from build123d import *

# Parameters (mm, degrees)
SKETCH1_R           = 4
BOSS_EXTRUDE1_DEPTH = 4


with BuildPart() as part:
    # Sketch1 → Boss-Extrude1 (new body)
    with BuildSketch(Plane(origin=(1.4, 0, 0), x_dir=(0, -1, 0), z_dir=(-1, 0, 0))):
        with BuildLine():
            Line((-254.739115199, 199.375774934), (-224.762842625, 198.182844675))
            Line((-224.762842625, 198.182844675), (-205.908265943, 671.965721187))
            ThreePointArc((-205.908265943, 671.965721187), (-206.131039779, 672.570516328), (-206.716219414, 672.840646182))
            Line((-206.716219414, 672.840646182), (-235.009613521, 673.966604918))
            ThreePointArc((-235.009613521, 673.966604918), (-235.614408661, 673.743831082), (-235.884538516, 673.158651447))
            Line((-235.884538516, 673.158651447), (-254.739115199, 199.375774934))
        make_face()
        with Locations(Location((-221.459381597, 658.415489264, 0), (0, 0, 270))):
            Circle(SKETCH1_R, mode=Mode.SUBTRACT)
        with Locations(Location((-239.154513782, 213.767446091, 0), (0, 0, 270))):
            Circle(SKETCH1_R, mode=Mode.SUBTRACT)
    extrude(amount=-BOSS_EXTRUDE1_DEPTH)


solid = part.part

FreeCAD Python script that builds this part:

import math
import FreeCAD as App
import Part
import Sketcher
from FreeCAD import Vector
Q = App.Units.Quantity

doc = App.newDocument("Part")
params = doc.addObject("Spreadsheet::Sheet", "Params")
for row, (alias, value) in enumerate([
    ("sketch1_diameter", "8 mm"),
    ("sketch1_length", "30 mm"),
    ("pad1_length", "4 mm"),
], start=1):
    params.set(f"A{row}", alias)
    params.set(f"B{row}", "=" + value)
    params.setAlias(f"B{row}", alias)

body = doc.addObject("PartDesign::Body", "Body")

# Sketch on YZ plane
sketch1 = doc.addObject("Sketcher::SketchObject", "Sketch")
body.addObject(sketch1)
sketch1.AttachmentSupport = (doc.YZ_Plane, [""])
sketch1.MapMode = "FlatFace"
sketch1.AttachmentOffset = App.Placement(Vector(0, 0, 1.4), App.Rotation())
sketch1.addGeometry(Part.LineSegment(Vector(254.7, 199.4, 0), Vector(224.8, 198.2, 0)), False)
sketch1.addGeometry(Part.LineSegment(Vector(224.8, 198.2, 0), Vector(205.9, 672, 0)), False)
sketch1.addGeometry(Part.ArcOfCircle(Part.Circle(Vector(206.7, 672, 0), Vector(0, 0, 1), 0.8), math.radians(92), math.radians(182)), False)
sketch1.addGeometry(Part.LineSegment(Vector(206.7, 672.8, 0), Vector(235, 674, 0)), False)
sketch1.addGeometry(Part.ArcOfCircle(Part.Circle(Vector(235, 673.1, 0), Vector(0, 0, 1), 0.8), math.radians(2), math.radians(92)), False)
sketch1.addGeometry(Part.LineSegment(Vector(235.9, 673.2, 0), Vector(254.7, 199.4, 0)), False)
sketch1.addGeometry(Part.Circle(Vector(239.2, 213.8, 0), Vector(0, 0, 1), 4), False)
sketch1.addGeometry(Part.Circle(Vector(221.5, 658.4, 0), Vector(0, 0, 1), 4), False)
sketch1.addConstraint(Sketcher.Constraint("Coincident", 0, 2, 1, 1))
sketch1.addConstraint(Sketcher.Constraint("Tangent", 1, 2, 2, 2))
sketch1.addConstraint(Sketcher.Constraint("Tangent", 2, 1, 3, 1))
sketch1.addConstraint(Sketcher.Constraint("Tangent", 3, 2, 4, 2))
sketch1.addConstraint(Sketcher.Constraint("Tangent", 4, 1, 5, 1))
sketch1.addConstraint(Sketcher.Constraint("Coincident", 5, 2, 0, 1))
sketch1.addConstraint(Sketcher.Constraint("Equal", 2, 4))
sketch1.addConstraint(Sketcher.Constraint("Equal", 6, 7))
sketch1.addConstraint(Sketcher.Constraint("Perpendicular", 0, 1))
sketch1.addConstraint(Sketcher.Constraint("Perpendicular", 1, 3))
sketch1.addConstraint(Sketcher.Constraint("Perpendicular", 3, 5))
sketch1.addConstraint(Sketcher.Constraint("Diameter", 6, Q("8 mm")))
sketch1.addConstraint(Sketcher.Constraint("Distance", 0, Q("30 mm")))
sketch1.addConstraint(Sketcher.Constraint("Radius", 2, Q("0.842105 mm")))
sketch1.addConstraint(Sketcher.Constraint("DistanceX", -1, 1, 4, 3, Q("235.043099 mm")))
sketch1.addConstraint(Sketcher.Constraint("DistanceY", 0, 2, 6, 3, Q("15.584601 mm")))
sketch1.addConstraint(Sketcher.Constraint("DistanceY", 6, 3, 2, 1, Q("459.0732 mm")))
sketch1.addConstraint(Sketcher.Constraint("DistanceX", 6, 3, 5, 2, Q("15.584601 mm")))
sketch1.addConstraint(Sketcher.Constraint("DistanceX", -1, 1, 7, 3, Q("221.459382 mm")))
sketch1.addConstraint(Sketcher.Constraint("DistanceY", -1, 1, 7, 3, Q("658.415489 mm")))
sketch1.addConstraint(Sketcher.Constraint("DistanceY", -1, 1, 1, 2, Q("671.965721 mm")))
sketch1.addConstraint(Sketcher.Constraint("DistanceY", -1, 1, 4, 1, Q("673.158651 mm")))
sketch1.setExpression("Constraints[11]", "Params.sketch1_diameter")
sketch1.setExpression("Constraints[12]", "Params.sketch1_length")
pad1 = doc.addObject("PartDesign::Pad", "Pad")
body.addObject(pad1)
pad1.Profile = sketch1
pad1.setExpression("Length", "Params.pad1_length")

doc.recompute()
